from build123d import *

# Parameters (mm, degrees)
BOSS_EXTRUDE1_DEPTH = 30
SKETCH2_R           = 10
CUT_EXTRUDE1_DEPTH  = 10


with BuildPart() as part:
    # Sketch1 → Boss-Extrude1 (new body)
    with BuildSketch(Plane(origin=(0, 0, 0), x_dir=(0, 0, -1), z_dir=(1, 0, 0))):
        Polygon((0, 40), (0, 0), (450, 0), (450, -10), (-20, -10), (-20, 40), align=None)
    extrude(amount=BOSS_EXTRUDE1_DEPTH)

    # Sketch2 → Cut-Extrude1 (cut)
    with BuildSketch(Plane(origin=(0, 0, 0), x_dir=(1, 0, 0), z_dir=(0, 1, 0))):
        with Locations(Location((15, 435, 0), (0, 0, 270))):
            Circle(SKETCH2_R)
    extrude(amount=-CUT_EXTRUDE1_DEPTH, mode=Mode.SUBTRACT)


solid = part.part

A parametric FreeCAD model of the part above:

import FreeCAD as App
import Part
import Sketcher

doc = App.newDocument("Part")
params = doc.addObject("Spreadsheet::Sheet", "Params")
for row, (alias, value) in enumerate([
    ("sketch1_width", "40 mm"),
    ("sketch1_width2", "50 mm"),
    ("sketch1_height", "20 mm"),
    ("sketch1_height2", "470 mm"),
    ("pad1_length", "30 mm"),
    ("sketch2_diameter", "20 mm"),
    ("pocket1_length", "10 mm"),
], start=1):
    params.set(f"A{row}", alias)
    params.set(f"B{row}", "=" + value)
    params.setAlias(f"B{row}", alias)

body = doc.addObject("PartDesign::Body", "Body")

sketch1 = body.newObject("Sketcher::SketchObject", "Sketch")
sketch1.AttachmentSupport = (doc.getObject("YZ_Plane"), [""])
sketch1.MapMode = "FlatFace"
sketch1.addGeometry(Part.LineSegment(App.Vector(0, 0, 0), App.Vector(40, 0, 0)), False)
sketch1.addGeometry(Part.LineSegment(App.Vector(40, 0, 0), App.Vector(40, 20, 0)), False)
sketch1.addGeometry(Part.LineSegment(App.Vector(40, 20, 0), App.Vector(-10, 20, 0)), False)
sketch1.addGeometry(Part.LineSegment(App.Vector(-10, 20, 0), App.Vector(-10, -450, 0)), False)
sketch1.addGeometry(Part.LineSegment(App.Vector(-10, -450, 0), App.Vector(0, -450, 0)), False)
sketch1.addGeometry(Part.LineSegment(App.Vector(0, -450, 0), App.Vector(0, 0, 0)), False)
sketch1.addConstraint(Sketcher.Constraint("Coincident", 0, 2, 1, 1))
sketch1.addConstraint(Sketcher.Constraint("Coincident", 1, 2, 2, 1))
sketch1.addConstraint(Sketcher.Constraint("Coincident", 2, 2, 3, 1))
sketch1.addConstraint(Sketcher.Constraint("Coincident", 3, 2, 4, 1))
sketch1.addConstraint(Sketcher.Constraint("Coincident", 4, 2, 5, 1))
sketch1.addConstraint(Sketcher.Constraint("Coincident", 5, 2, 0, 1))
sketch1.addConstraint(Sketcher.Constraint("Horizontal", 0))
sketch1.addConstraint(Sketcher.Constraint("Vertical", 1))
sketch1.addConstraint(Sketcher.Constraint("Horizontal", 2))
sketch1.addConstraint(Sketcher.Constraint("Vertical", 3))
sketch1.addConstraint(Sketcher.Constraint("Horizontal", 4))
sketch1.addConstraint(Sketcher.Constraint("Vertical", 5))
sketch1.addConstraint(Sketcher.Constraint("Coincident", 5, 2, -1, 1))
sketch1.addConstraint(Sketcher.Constraint("DistanceX", 0, 1, 0, 2, 40.0))
sketch1.addConstraint(Sketcher.Constraint("DistanceX", 2, 2, 2, 1, 50.0))
sketch1.addConstraint(Sketcher.Constraint("DistanceY", 1, 1, 1, 2, 20.0))
sketch1.addConstraint(Sketcher.Constraint("DistanceY", 3, 2, 3, 1, 470.0))
sketch1.setExpression("Constraints[13]", "Params.sketch1_width")
sketch1.setExpression("Constraints[14]", "Params.sketch1_width2")
sketch1.setExpression("Constraints[15]", "Params.sketch1_height")
sketch1.setExpression("Constraints[16]", "Params.sketch1_height2")
pad1 = body.newObject("PartDesign::Pad", "Pad")
pad1.Profile = sketch1
pad1.setExpression("Length", "Params.pad1_length")

sketch2 = body.newObject("Sketcher::SketchObject", "Sketch001")
sketch2.AttachmentSupport = (doc.getObject("XZ_Plane"), [""])
sketch2.MapMode = "FlatFace"
sketch2.addGeometry(Part.Circle(App.Vector(15, -435, 0), App.Vector(0, 0, 1), 10), False)
sketch2.addConstraint(Sketcher.Constraint("Diameter", 0, 20.0))
sketch2.addConstraint(Sketcher.Constraint("DistanceX", -1, 1, 0, 3, 15.0))
sketch2.addConstraint(Sketcher.Constraint("DistanceY", 0, 3, -1, 1, 435.0))
sketch2.setExpression("Constraints[0]", "Params.sketch2_diameter")
pocket1 = body.newObject("PartDesign::Pocket", "Pocket")
pocket1.Profile = sketch2
pocket1.setExpression("Length", "Params.pocket1_length")
pocket1.Reversed = True

doc.recompute()
